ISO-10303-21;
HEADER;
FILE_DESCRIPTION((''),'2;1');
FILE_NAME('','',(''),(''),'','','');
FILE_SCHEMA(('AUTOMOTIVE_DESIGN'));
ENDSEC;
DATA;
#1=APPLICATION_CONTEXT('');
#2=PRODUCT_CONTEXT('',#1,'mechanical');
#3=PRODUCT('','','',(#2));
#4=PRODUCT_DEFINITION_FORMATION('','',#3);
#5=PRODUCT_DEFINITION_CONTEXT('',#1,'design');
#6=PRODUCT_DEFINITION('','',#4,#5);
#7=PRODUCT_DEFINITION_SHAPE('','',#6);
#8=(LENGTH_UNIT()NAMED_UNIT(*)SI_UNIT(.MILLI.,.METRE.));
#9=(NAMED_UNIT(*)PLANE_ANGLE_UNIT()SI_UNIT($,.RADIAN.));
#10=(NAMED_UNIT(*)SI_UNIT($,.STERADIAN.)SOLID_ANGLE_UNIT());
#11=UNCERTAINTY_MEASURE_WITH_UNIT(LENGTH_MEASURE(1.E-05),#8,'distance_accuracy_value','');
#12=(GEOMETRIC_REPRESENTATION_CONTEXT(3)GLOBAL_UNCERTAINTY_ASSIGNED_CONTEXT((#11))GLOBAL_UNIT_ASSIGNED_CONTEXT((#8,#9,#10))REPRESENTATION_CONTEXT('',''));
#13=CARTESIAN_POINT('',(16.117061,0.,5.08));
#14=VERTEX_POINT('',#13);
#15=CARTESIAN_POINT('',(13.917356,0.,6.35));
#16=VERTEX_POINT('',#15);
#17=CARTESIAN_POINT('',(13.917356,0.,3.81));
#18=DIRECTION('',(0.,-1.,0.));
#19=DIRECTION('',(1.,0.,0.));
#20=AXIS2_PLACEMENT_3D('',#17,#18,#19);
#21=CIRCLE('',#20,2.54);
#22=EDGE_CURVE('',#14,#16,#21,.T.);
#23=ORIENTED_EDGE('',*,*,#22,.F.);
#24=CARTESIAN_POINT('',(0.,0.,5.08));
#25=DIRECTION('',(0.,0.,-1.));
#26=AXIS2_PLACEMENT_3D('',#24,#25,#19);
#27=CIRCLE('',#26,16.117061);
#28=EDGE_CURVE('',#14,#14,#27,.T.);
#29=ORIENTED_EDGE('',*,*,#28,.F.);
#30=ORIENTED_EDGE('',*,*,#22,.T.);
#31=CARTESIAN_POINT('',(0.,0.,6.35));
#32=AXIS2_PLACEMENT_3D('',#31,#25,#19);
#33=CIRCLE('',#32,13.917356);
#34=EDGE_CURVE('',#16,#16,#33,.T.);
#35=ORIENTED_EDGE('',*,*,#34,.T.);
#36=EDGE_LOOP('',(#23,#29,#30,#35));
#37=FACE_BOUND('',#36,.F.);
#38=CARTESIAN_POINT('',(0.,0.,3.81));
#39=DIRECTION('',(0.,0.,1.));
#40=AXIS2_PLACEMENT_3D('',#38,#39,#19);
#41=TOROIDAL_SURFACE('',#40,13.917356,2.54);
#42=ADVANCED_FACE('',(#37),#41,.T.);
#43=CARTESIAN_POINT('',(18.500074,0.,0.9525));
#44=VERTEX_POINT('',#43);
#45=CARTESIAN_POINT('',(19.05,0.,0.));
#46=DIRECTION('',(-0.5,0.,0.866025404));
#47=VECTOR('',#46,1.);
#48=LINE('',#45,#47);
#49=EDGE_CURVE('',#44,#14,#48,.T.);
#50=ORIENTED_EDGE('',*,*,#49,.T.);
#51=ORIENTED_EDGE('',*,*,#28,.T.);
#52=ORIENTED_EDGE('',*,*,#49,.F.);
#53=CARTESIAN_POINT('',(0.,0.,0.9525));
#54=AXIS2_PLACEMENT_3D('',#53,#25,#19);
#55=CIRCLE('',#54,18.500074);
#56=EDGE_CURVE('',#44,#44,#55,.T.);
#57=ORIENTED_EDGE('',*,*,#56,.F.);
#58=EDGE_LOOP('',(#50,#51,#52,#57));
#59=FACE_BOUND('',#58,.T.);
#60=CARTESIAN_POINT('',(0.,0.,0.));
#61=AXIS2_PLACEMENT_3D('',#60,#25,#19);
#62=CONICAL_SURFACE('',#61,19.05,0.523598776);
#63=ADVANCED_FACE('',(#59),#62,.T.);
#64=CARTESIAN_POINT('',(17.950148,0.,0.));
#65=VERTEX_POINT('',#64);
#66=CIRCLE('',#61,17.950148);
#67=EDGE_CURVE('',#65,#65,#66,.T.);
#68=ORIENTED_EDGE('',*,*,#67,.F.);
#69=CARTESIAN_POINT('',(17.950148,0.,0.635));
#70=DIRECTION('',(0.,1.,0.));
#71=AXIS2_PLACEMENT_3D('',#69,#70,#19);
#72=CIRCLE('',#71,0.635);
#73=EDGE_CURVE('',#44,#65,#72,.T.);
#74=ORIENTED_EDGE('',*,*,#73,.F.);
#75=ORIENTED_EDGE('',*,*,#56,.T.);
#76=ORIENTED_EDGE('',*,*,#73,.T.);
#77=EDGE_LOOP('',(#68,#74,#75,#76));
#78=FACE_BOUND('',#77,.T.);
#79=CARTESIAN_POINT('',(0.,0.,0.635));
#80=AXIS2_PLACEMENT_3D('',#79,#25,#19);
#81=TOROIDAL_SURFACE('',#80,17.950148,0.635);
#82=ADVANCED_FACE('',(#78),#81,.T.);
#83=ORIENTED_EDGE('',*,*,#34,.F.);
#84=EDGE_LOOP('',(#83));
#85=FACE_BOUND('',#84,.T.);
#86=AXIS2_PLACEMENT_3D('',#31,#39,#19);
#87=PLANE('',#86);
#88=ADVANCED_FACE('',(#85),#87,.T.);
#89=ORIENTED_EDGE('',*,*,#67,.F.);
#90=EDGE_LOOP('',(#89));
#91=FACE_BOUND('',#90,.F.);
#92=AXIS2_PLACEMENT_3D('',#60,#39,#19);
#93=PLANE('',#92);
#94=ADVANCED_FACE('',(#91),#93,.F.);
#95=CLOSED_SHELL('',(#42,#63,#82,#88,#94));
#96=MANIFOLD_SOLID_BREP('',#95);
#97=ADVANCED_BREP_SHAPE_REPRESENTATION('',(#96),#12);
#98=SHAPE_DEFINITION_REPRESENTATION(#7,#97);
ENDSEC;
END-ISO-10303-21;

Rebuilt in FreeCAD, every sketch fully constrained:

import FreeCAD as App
import Part
import Sketcher
from FreeCAD import Vector
Q = App.Units.Quantity


def edges_at(feature, points):
    """Names of the edges that pass closest to the given points."""
    edges = feature.Shape.Edges
    near = lambda p: min(range(len(edges)), key=lambda i: edges[i].distToShape(Part.Vertex(*p))[0])
    return sorted({f"Edge{near(p) + 1}" for p in points})

doc = App.newDocument("Part")
params = doc.addObject("Spreadsheet::Sheet", "Params")
for row, (alias, value) in enumerate([
    ("sketch1_diameter", "1.5 in"),
    ("pad1_length", "0.25 in"),
    ("pad1_taper", "-30 deg"),
    ("fillet_radius", "0.1 in"),
    ("fillet2_radius", "0.025 in"),
], start=1):
    params.set(f"A{row}", alias)
    params.set(f"B{row}", "=" + value)
    params.setAlias(f"B{row}", alias)

body = doc.addObject("PartDesign::Body", "Body")

# Sketch on XY plane
sketch1 = doc.addObject("Sketcher::SketchObject", "Sketch")
body.addObject(sketch1)
sketch1.AttachmentSupport = (doc.XY_Plane, [""])
sketch1.MapMode = "FlatFace"
sketch1.addGeometry(Part.Circle(Vector(0, 0, 0), Vector(0, 0, 1), 19.05), False)
sketch1.addConstraint([
    Sketcher.Constraint("Coincident", 0, 3, -1, 1),
    Sketcher.Constraint("Diameter", 0, Q("1.5 in")),
])
sketch1.setExpression("Constraints[1]", "Params.sketch1_diameter")
pad1 = doc.addObject("PartDesign::Pad", "Pad")
body.addObject(pad1)
pad1.Profile = sketch1
pad1.setExpression("Length", "Params.pad1_length")
pad1.setExpression("TaperAngle", "Params.pad1_taper")
doc.recompute()

fillet = doc.addObject("PartDesign::Fillet", "Fillet")
body.addObject(fillet)
fillet.Base = (pad1, edges_at(pad1, [(-15.384, 0, 6.35)]))
fillet.setExpression("Radius", "Params.fillet_radius")
doc.recompute()

fillet2 = doc.addObject("PartDesign::Fillet", "Fillet001")
body.addObject(fillet2)
fillet2.Base = (fillet, edges_at(fillet, [(-19.05, 0, 0)]))
fillet2.setExpression("Radius", "Params.fillet2_radius")

doc.recompute()
